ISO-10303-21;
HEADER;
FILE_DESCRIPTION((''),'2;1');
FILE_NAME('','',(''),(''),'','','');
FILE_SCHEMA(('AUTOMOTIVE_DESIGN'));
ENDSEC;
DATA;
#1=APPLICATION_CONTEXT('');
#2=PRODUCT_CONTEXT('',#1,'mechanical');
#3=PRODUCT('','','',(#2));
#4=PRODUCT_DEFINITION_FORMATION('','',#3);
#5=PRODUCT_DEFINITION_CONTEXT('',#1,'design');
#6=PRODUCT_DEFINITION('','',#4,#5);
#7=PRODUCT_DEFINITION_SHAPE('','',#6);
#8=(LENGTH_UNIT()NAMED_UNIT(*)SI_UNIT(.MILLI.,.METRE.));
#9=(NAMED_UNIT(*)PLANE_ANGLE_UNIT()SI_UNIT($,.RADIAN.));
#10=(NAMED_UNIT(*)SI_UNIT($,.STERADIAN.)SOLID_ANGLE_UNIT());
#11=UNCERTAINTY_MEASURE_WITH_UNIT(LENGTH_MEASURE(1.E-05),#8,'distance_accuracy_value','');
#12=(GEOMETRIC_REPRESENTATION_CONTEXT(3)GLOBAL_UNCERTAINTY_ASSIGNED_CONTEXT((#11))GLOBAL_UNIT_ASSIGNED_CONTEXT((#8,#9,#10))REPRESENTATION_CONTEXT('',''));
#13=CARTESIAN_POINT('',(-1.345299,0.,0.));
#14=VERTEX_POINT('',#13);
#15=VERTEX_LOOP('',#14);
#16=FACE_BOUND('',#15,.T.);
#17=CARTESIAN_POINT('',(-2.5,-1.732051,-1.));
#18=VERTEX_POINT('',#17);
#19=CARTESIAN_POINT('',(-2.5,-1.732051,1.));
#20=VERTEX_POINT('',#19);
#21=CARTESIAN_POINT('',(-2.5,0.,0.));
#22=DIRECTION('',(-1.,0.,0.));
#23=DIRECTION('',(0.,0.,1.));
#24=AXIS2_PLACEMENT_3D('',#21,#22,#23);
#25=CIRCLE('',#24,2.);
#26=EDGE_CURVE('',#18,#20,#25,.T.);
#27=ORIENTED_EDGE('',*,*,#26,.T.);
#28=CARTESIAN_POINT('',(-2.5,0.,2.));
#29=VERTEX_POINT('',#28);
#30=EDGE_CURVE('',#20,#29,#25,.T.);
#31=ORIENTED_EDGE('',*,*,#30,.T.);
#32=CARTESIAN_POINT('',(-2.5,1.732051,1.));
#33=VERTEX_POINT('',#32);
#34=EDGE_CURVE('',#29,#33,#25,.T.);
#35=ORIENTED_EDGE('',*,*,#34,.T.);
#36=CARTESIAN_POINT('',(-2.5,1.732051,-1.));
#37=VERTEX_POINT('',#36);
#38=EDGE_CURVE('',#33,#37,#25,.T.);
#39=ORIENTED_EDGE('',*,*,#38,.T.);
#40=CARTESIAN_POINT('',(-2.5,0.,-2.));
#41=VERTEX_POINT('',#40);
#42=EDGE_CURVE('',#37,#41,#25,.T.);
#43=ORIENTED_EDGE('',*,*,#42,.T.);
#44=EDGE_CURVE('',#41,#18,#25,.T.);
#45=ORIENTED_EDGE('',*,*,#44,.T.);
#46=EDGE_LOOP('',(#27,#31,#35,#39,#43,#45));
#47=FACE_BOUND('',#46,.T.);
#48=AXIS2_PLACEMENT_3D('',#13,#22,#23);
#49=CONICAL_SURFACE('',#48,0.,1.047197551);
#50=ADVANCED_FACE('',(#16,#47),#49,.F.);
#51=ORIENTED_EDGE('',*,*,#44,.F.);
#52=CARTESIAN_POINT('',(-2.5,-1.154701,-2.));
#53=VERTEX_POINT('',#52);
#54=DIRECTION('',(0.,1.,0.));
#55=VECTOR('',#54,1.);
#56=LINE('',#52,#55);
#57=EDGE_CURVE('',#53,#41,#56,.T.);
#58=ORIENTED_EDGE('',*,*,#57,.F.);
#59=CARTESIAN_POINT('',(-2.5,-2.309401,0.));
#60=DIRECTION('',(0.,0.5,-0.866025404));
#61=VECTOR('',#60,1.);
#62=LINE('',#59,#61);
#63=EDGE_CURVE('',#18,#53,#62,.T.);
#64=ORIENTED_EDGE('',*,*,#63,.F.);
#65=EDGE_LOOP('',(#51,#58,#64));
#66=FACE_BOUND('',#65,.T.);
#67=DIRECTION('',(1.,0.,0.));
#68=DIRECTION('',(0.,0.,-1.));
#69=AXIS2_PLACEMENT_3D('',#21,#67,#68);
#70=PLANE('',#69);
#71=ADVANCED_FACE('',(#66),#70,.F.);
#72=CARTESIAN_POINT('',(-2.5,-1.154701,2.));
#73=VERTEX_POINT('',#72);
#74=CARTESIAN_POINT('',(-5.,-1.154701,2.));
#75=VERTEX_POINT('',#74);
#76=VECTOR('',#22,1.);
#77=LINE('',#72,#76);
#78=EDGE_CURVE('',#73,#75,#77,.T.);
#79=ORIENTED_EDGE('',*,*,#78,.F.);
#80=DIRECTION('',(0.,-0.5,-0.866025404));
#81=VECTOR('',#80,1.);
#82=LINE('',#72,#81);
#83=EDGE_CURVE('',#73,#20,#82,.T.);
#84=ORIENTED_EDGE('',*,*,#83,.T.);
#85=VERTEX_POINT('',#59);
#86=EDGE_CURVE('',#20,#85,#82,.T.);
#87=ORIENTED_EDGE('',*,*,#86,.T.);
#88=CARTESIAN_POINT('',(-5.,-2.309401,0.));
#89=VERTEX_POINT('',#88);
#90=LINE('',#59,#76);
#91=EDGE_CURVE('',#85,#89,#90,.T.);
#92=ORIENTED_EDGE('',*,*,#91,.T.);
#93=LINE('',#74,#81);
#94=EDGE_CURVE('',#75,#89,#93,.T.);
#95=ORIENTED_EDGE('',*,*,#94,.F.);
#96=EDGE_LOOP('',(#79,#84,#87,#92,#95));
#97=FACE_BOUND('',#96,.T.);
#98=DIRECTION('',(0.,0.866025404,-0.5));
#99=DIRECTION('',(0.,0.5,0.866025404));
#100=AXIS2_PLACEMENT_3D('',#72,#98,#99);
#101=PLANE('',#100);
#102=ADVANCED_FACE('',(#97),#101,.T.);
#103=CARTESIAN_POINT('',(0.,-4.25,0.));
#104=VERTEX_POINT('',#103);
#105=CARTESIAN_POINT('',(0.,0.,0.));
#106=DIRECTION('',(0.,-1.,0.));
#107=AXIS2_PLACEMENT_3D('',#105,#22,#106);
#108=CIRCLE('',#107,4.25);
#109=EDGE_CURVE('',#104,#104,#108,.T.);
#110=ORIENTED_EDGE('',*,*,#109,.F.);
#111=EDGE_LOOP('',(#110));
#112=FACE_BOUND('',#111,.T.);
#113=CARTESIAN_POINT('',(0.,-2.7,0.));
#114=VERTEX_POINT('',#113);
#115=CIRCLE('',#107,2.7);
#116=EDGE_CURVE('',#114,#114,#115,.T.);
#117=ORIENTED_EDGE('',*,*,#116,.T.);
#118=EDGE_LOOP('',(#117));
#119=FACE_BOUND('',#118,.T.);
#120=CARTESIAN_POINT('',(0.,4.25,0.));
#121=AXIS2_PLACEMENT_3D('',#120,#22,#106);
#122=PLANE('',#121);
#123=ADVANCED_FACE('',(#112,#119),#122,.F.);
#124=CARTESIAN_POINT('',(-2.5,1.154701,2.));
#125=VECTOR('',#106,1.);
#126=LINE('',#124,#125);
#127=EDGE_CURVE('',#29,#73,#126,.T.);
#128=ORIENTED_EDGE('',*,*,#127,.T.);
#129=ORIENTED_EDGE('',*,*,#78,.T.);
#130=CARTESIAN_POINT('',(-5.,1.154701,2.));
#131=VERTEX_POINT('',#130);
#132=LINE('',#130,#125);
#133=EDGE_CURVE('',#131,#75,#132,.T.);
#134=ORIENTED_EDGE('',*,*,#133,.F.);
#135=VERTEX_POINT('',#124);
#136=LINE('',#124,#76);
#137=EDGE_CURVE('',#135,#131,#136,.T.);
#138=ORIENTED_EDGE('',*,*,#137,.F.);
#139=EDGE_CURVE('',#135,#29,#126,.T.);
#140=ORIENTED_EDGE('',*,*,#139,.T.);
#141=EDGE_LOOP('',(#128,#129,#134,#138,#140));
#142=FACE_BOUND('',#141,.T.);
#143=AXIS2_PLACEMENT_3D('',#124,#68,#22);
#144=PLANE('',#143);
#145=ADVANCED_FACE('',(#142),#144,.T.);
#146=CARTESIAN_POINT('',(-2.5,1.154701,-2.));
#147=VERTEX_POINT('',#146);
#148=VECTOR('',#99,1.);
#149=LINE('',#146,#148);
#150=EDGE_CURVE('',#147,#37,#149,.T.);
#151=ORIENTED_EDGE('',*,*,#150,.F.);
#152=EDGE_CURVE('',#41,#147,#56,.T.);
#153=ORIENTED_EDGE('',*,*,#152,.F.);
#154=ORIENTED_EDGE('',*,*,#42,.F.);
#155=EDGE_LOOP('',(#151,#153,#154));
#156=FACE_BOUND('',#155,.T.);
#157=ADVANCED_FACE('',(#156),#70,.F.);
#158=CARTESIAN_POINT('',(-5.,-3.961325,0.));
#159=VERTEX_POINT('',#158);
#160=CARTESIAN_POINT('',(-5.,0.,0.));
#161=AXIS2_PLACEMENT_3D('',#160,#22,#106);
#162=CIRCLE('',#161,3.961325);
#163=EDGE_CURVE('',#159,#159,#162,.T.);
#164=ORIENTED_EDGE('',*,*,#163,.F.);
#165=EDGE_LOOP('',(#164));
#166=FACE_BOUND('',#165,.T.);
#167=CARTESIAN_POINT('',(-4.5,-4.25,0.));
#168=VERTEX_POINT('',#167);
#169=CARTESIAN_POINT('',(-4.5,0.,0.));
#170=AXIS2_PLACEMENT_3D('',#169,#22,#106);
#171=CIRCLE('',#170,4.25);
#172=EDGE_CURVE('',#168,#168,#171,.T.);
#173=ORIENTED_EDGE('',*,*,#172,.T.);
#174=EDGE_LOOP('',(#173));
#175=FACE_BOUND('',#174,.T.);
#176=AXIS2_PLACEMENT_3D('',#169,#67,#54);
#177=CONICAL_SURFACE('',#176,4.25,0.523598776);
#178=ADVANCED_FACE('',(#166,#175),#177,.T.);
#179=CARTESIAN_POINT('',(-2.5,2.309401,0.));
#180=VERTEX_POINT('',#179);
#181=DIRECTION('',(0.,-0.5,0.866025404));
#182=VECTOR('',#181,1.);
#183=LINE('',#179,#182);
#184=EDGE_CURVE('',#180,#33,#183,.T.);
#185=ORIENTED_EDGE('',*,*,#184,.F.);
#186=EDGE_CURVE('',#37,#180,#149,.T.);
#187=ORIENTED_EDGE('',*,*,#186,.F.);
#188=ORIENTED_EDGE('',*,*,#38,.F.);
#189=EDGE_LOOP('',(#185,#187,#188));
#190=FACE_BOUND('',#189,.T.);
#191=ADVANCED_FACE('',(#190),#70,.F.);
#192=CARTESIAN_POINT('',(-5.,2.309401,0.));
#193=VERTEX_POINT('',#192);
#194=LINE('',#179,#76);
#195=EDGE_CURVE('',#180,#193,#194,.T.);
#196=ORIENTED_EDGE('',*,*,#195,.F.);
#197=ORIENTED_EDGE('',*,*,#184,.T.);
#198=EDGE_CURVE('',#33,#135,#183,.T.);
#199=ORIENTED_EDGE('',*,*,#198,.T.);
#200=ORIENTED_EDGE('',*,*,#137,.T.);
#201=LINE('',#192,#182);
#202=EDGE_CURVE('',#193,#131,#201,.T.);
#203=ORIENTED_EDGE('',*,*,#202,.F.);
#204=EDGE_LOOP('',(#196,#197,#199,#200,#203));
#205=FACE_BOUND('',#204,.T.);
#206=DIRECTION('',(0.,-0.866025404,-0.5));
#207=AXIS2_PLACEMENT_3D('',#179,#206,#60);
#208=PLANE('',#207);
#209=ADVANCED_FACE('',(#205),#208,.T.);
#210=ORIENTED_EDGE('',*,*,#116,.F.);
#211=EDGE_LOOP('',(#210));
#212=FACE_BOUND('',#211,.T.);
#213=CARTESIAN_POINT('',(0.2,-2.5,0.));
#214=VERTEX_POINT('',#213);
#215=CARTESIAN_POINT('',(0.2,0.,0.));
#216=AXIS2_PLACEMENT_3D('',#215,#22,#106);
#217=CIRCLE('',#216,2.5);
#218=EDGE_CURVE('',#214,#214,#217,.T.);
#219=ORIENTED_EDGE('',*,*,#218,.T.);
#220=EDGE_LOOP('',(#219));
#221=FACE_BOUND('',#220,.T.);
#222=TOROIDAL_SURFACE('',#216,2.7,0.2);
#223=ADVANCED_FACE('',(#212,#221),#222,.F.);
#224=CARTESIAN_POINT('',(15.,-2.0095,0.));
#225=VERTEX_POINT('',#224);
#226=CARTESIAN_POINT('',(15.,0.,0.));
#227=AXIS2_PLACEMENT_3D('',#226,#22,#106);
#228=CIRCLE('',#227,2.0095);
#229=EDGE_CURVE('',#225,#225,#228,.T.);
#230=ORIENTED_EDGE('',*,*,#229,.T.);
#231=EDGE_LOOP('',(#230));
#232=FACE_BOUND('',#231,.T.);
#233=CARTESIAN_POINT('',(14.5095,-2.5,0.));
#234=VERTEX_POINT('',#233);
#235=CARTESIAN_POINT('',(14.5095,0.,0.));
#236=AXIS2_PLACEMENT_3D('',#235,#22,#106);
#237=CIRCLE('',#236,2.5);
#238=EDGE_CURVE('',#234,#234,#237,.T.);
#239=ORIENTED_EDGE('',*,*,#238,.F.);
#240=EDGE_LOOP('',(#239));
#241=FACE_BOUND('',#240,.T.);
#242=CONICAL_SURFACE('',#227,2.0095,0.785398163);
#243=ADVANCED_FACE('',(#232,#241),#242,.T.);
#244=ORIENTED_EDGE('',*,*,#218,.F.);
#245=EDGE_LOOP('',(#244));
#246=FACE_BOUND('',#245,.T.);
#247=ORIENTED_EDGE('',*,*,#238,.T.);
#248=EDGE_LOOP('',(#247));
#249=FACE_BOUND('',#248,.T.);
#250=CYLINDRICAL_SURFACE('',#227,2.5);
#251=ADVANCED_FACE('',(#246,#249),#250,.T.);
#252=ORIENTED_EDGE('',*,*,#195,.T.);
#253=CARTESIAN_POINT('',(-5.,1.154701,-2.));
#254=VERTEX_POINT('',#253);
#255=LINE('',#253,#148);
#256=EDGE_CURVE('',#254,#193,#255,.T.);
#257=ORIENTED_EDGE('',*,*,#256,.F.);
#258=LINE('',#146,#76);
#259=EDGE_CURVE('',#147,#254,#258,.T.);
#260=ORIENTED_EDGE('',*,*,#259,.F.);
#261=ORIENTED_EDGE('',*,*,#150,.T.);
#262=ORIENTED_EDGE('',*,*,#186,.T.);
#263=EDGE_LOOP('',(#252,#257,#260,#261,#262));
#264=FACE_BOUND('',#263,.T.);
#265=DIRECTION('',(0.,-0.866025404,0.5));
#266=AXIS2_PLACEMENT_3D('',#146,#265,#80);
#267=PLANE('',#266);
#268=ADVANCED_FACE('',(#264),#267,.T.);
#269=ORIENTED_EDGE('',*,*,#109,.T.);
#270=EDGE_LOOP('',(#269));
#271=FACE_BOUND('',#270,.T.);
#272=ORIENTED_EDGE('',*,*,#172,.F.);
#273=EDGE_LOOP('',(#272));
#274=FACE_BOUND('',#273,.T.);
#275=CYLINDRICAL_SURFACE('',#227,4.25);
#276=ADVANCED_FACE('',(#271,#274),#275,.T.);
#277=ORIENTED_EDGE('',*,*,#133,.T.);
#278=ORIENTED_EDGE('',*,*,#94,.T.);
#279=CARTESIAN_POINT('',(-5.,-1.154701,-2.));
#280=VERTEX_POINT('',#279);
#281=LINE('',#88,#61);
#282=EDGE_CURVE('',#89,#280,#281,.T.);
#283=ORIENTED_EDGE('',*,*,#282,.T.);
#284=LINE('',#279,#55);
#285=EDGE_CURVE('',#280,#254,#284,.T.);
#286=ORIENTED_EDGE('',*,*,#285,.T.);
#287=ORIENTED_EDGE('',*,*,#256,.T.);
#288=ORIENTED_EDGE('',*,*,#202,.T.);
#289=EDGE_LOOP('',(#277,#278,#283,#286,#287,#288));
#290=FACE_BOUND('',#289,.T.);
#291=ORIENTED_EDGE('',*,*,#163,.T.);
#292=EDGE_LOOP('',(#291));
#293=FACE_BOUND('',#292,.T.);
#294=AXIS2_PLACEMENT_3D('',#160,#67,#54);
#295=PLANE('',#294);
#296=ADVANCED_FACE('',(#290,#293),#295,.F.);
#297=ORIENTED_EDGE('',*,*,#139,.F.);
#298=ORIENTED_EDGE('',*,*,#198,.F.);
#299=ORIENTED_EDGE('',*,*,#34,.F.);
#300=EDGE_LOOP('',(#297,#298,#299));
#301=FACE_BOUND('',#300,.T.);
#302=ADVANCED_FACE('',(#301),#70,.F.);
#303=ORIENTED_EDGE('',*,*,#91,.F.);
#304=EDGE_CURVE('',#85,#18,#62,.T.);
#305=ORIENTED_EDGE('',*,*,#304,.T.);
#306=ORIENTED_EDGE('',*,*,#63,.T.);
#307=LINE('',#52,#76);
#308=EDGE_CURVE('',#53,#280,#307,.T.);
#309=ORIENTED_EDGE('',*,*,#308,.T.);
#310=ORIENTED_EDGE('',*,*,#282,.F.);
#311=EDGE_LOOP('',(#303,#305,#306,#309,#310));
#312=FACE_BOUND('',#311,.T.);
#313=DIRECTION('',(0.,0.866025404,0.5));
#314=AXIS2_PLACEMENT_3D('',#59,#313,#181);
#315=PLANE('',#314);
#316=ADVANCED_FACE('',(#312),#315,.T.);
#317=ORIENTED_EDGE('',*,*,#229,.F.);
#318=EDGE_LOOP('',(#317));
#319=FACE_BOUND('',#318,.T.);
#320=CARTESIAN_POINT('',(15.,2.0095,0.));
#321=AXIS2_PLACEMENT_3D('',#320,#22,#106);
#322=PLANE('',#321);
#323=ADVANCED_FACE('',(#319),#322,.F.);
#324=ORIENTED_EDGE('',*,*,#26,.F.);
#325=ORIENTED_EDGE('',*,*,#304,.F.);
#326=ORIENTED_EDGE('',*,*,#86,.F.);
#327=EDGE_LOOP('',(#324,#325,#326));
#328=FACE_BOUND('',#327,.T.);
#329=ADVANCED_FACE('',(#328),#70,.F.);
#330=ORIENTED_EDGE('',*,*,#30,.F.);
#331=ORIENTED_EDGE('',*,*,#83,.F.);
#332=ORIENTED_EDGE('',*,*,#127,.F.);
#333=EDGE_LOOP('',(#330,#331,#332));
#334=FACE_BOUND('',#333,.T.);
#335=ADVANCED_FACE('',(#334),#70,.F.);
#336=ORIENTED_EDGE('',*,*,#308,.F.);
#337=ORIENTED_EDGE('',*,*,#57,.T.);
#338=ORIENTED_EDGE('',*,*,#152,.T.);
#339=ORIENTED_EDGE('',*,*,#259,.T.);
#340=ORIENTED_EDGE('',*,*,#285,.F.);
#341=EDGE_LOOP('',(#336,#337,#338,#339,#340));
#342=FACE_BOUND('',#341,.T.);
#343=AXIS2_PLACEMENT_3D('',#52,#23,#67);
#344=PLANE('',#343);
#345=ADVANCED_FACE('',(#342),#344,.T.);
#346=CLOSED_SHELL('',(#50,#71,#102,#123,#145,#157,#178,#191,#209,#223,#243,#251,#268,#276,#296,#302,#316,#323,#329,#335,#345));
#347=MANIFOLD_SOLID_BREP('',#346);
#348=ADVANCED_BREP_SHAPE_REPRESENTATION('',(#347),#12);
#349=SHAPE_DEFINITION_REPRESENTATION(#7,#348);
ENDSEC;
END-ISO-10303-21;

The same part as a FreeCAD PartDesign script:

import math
import FreeCAD as App
import Part
import Sketcher

V = App.Vector
Q = App.Units.Quantity

doc = App.newDocument("Part")
body = doc.addObject("PartDesign::Body", "Body")

# Sketch on XY plane
sketch1 = body.newObject("Sketcher::SketchObject", "Sketch")
sketch1.AttachmentSupport = (doc.getObject("XY_Plane"), [""])
sketch1.MapMode = "FlatFace"
sketch1.addGeometry([
    Part.LineSegment(V(-5, 3.96, 0), V(-5, 0, 0)),  # 0
    Part.LineSegment(V(-5, 0, 0), V(15, 0, 0)),  # 1
    Part.LineSegment(V(15, 0, 0), V(15, 2.01, 0)),  # 2
    Part.LineSegment(V(15, 2.01, 0), V(14.51, 2.5, 0)),  # 3
    Part.LineSegment(V(14.51, 2.5, 0), V(0.2, 2.5, 0)),  # 4
    Part.ArcOfCircle(Part.Circle(V(0.2, 2.7, 0), V(0, 0, 1), 0.2), math.radians(-180), math.radians(-90)),  # 5
    Part.LineSegment(V(0, 2.7, 0), V(0, 4.25, 0)),  # 6
    Part.LineSegment(V(0, 4.25, 0), V(-4.5, 4.25, 0)),  # 7
    Part.LineSegment(V(-4.5, 4.25, 0), V(-5, 3.96, 0)),  # 8
], False)
sketch1.addConstraint([
    Sketcher.Constraint("Coincident", 0, 2, 1, 1),
    Sketcher.Constraint("Coincident", 1, 2, 2, 1),
    Sketcher.Constraint("Coincident", 2, 2, 3, 1),
    Sketcher.Constraint("Coincident", 3, 2, 4, 1),
    Sketcher.Constraint("Tangent", 4, 2, 5, 2),
    Sketcher.Constraint("Tangent", 5, 1, 6, 1),
    Sketcher.Constraint("Coincident", 6, 2, 7, 1),
    Sketcher.Constraint("Coincident", 7, 2, 8, 1),
    Sketcher.Constraint("Coincident", 8, 2, 0, 1),
    Sketcher.Constraint("Vertical", 0),
    Sketcher.Constraint("Horizontal", 1),
    Sketcher.Constraint("Vertical", 2),
    Sketcher.Constraint("Horizontal", 4),
    Sketcher.Constraint("Vertical", 6),
    Sketcher.Constraint("Horizontal", 7),
    Sketcher.Constraint("PointOnObject", 0, 2, -1),
    Sketcher.Constraint("PointOnObject", 5, 1, -2),
    Sketcher.Constraint("Radius", 5, 0.2),
    Sketcher.Constraint("DistanceX", 1, 1, 1, 2, 20.0),
    Sketcher.Constraint("Angle", 3, Q("135 deg")),
    Sketcher.Constraint("Angle", 8, Q("-150 deg")),
    Sketcher.Constraint("DistanceX", 7, 2, 7, 1, 4.5),
    Sketcher.Constraint("DistanceX", 0, 2, -1, 1, 5.0),
    Sketcher.Constraint("DistanceY", 6, 1, 6, 2, 1.55),
    Sketcher.Constraint("DistanceY", -1, 1, 5, 3, 2.7),
    Sketcher.Constraint("DistanceX", 4, 2, 4, 1, 14.3095),
])
revolution = body.newObject("PartDesign::Revolution", "Revolution")
revolution.Profile = sketch1
revolution.ReferenceAxis = (sketch1, ["H_Axis"])
revolution.Angle = 360

# Sketch on XY plane
sketch2 = body.newObject("Sketcher::SketchObject", "Sketch001")
sketch2.AttachmentSupport = (doc.getObject("XY_Plane"), [""])
sketch2.MapMode = "FlatFace"
sketch2.addGeometry([
    Part.LineSegment(V(-5, 2, 0), V(-5, 0, 0)),
    Part.LineSegment(V(-5, 0, 0), V(-1.3, 0, 0)),
    Part.LineSegment(V(-1.3, 0, 0), V(-2.5, 2, 0)),
    Part.LineSegment(V(-2.5, 2, 0), V(-5, 2, 0)),
], False)
sketch2.addConstraint([
    Sketcher.Constraint("Coincident", 0, 2, 1, 1),
    Sketcher.Constraint("Coincident", 1, 2, 2, 1),
    Sketcher.Constraint("Coincident", 2, 2, 3, 1),
    Sketcher.Constraint("Coincident", 3, 2, 0, 1),
    Sketcher.Constraint("Vertical", 0),
    Sketcher.Constraint("Horizontal", 1),
    Sketcher.Constraint("Horizontal", 3),
    Sketcher.Constraint("PointOnObject", 0, 2, -1),
    Sketcher.Constraint("DistanceY", 0, 2, 0, 1, 2.0),
    Sketcher.Constraint("Angle", 2, Q("120 deg")),
    Sketcher.Constraint("DistanceX", 3, 2, 3, 1, 2.5),
    Sketcher.Constraint("DistanceX", 0, 2, -1, 1, 5.0),
])
groove = body.newObject("PartDesign::Groove", "Groove")
groove.Profile = sketch2
groove.ReferenceAxis = (sketch2, ["H_Axis"])
groove.Angle = 360

# Sketch on YZ plane
sketch3 = body.newObject("Sketcher::SketchObject", "Sketch002")
sketch3.AttachmentSupport = (doc.getObject("YZ_Plane"), [""])
sketch3.MapMode = "FlatFace"
sketch3.AttachmentOffset = App.Placement(V(0, 0, -5), App.Rotation())
sketch3.addGeometry([
    Part.LineSegment(V(-1.2, 2, 0), V(-2.3, 0, 0)),  # 0
    Part.LineSegment(V(-2.3, 0, 0), V(-1.2, -2, 0)),  # 1
    Part.LineSegment(V(-1.2, -2, 0), V(1.2, -2, 0)),  # 2
    Part.LineSegment(V(1.2, -2, 0), V(2.3, 0, 0)),  # 3
    Part.LineSegment(V(2.3, 0, 0), V(1.2, 2, 0)),  # 4
    Part.LineSegment(V(1.2, 2, 0), V(-1.2, 2, 0)),  # 5
], False)
sketch3.addConstraint([
    Sketcher.Constraint("Coincident", 0, 2, 1, 1),
    Sketcher.Constraint("Coincident", 1, 2, 2, 1),
    Sketcher.Constraint("Coincident", 2, 2, 3, 1),
    Sketcher.Constraint("Coincident", 3, 2, 4, 1),
    Sketcher.Constraint("Coincident", 4, 2, 5, 1),
    Sketcher.Constraint("Coincident", 5, 2, 0, 1),
    Sketcher.Constraint("Horizontal", 2),
    Sketcher.Constraint("Horizontal", 5),
    Sketcher.Constraint("Symmetric", 0, 2, 3, 2, -1, 1),
    Sketcher.Constraint("Symmetric", 1, 2, 4, 2, -1, 1),
    Sketcher.Constraint("PointOnObject", 0, 2, -1),
    Sketcher.Constraint("Parallel", 0, 3),
    Sketcher.Constraint("Vertical", 2, 2, 4, 2),
    Sketcher.Constraint("Angle", 0, Q("-120 deg")),
    Sketcher.Constraint("DistanceY", 1, 2, -1, 1, 2.0),
    Sketcher.Constraint("DistanceX", 2, 1, 2, 2, 2.309401),
])
pocket1 = body.newObject("PartDesign::Pocket", "Pocket")
pocket1.Profile = sketch3
pocket1.Length = 2.5
pocket1.Reversed = True

doc.recompute()
